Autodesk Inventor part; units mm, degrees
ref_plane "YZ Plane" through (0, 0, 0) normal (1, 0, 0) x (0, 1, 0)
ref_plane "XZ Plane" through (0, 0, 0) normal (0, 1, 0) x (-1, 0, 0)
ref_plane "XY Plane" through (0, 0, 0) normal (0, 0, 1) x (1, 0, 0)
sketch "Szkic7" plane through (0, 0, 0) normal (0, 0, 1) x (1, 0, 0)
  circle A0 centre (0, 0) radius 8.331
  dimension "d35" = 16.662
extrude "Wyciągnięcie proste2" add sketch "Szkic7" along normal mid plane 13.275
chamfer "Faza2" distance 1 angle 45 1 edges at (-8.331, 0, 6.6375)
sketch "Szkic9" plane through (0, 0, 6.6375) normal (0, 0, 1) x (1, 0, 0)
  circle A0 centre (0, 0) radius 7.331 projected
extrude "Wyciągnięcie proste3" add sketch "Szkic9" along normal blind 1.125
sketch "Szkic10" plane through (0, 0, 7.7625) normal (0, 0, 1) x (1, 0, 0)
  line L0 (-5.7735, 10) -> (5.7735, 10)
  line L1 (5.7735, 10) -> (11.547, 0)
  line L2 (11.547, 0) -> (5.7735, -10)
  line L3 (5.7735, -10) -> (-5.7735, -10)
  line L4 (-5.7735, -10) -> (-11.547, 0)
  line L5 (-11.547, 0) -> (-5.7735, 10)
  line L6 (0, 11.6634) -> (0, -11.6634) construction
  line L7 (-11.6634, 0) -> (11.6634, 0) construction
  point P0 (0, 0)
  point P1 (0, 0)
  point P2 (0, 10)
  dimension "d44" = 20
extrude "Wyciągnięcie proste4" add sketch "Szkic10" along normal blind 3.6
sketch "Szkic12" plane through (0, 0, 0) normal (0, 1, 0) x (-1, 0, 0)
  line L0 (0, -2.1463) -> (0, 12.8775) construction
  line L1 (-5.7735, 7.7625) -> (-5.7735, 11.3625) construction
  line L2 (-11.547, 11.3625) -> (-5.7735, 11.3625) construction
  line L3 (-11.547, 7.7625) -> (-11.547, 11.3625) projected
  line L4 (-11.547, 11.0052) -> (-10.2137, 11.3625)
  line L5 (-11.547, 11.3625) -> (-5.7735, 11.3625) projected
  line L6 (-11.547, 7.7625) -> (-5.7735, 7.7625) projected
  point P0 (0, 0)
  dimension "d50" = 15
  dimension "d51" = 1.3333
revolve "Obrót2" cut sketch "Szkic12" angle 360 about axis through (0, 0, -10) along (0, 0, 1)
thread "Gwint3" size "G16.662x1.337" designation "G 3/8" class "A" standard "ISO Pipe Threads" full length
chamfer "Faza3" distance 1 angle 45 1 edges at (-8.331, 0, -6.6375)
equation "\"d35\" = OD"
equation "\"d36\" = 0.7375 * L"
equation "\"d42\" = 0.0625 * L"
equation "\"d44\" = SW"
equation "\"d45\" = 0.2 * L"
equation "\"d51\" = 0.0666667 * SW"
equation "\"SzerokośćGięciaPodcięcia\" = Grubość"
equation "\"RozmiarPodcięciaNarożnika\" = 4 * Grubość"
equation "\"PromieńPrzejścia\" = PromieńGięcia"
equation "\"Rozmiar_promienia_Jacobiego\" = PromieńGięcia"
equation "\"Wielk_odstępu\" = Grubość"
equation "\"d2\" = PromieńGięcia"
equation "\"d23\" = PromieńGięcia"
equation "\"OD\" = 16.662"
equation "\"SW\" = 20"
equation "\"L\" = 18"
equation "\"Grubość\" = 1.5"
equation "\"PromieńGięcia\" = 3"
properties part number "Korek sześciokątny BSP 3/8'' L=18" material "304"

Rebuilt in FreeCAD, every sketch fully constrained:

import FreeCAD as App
import Part
import Sketcher
Q = App.Units.Quantity


def edges_at(feature, points):
    """Names of the edges that pass closest to the given points."""
    edges = feature.Shape.Edges
    near = lambda p: min(range(len(edges)), key=lambda i: edges[i].distToShape(Part.Vertex(*p))[0])
    return sorted({f"Edge{near(p) + 1}" for p in points})


def add_polygon(sketch, points):
    """Adds a closed chain of lines whose ends are joined by coincident constraints."""
    first, n = sketch.GeometryCount, len(points)
    for a, b in zip(points, points[1:] + points[:1]):
        sketch.addGeometry(Part.LineSegment(App.Vector(*a, 0), App.Vector(*b, 0)), False)
    for i in range(n):
        sketch.addConstraint(Sketcher.Constraint("Coincident", first + i, 2, first + (i + 1) % n, 1))

doc = App.newDocument("Part")
body = doc.addObject("PartDesign::Body", "Body")

# Sketch on XY plane
sketch1 = body.newObject("Sketcher::SketchObject", "Sketch")
sketch1.AttachmentSupport = (doc.getObject("XY_Plane"), [""])
sketch1.MapMode = "FlatFace"
sketch1.addGeometry(Part.Circle(App.Vector(0, 0, 0), App.Vector(0, 0, 1), 8), False)
sketch1.addConstraint([
    Sketcher.Constraint("Coincident", 0, 3, -1, 1),
    Sketcher.Constraint("Diameter", 0, 16.662),
])
pad1 = body.newObject("PartDesign::Pad", "Pad")
pad1.Profile = sketch1
pad1.Length = 13.275
pad1.Midplane = True
doc.recompute()

chamfer = body.newObject("PartDesign::Chamfer", "Chamfer")
chamfer.Base = (pad1, edges_at(pad1, [(-8.331, 0, 6.638)]))
chamfer.Size = 1

# Sketch on XY plane
sketch2 = body.newObject("Sketcher::SketchObject", "Sketch001")
sketch2.AttachmentSupport = (doc.getObject("XY_Plane"), [""])
sketch2.MapMode = "FlatFace"
sketch2.AttachmentOffset = App.Placement(App.Vector(0, 0, 6.6375), App.Rotation())
sketch2.addGeometry(Part.Circle(App.Vector(0, 0, 0), App.Vector(0, 0, 1), 7), False)
sketch2.addConstraint([
    Sketcher.Constraint("Coincident", 0, 3, -1, 1),
    Sketcher.Constraint("Diameter", 0, 14.662),
])
pad2 = body.newObject("PartDesign::Pad", "Pad001")
pad2.Profile = sketch2
pad2.Length = 1.125

# Sketch on XY plane
sketch3 = body.newObject("Sketcher::SketchObject", "Sketch002")
sketch3.AttachmentSupport = (doc.getObject("XY_Plane"), [""])
sketch3.MapMode = "FlatFace"
sketch3.AttachmentOffset = App.Placement(App.Vector(0, 0, 7.7625), App.Rotation())
add_polygon(sketch3, [(6, 10), (-6, 10), (-12, 0), (-6, -10), (6, -10), (12, 0)])  # lines 0-5
sketch3.addConstraint([
    Sketcher.Constraint("Horizontal", 0),
    Sketcher.Constraint("Horizontal", 3),
    Sketcher.Constraint("Symmetric", 0, 2, 3, 2, -1, 1),
    Sketcher.Constraint("Symmetric", 1, 2, 4, 2, -1, 1),
    Sketcher.Constraint("PointOnObject", 1, 2, -1),
    Sketcher.Constraint("Parallel", 2, 5),
    Sketcher.Constraint("Vertical", 0, 2, 2, 2),
    Sketcher.Constraint("DistanceY", 2, 2, 0, 2, 20.0),
    Sketcher.Constraint("Angle", 1, Q("-120 deg")),
    Sketcher.Constraint("DistanceX", 0, 2, 0, 1, 11.547),
])
pad3 = body.newObject("PartDesign::Pad", "Pad002")
pad3.Profile = sketch3
pad3.Length = 3.6

# Sketch on XZ plane
sketch4 = body.newObject("Sketcher::SketchObject", "Sketch003")
sketch4.AttachmentSupport = (doc.getObject("XZ_Plane"), [""])
sketch4.MapMode = "FlatFace"
add_polygon(sketch4, [(11.55, 11.36), (11.55, 11.01), (10.21, 11.36)])  # lines 0-2
sketch4.addConstraint([
    Sketcher.Constraint("Vertical", 0),
    Sketcher.Constraint("Horizontal", 2),
    Sketcher.Constraint("DistanceX", 2, 1, 2, 2, 1.3333),
    Sketcher.Constraint("DistanceY", 0, 2, 0, 1, 0.3573),
    Sketcher.Constraint("DistanceX", -1, 1, 0, 2, 11.547),
    Sketcher.Constraint("DistanceY", -1, 1, 0, 2, 11.0052),
])
groove = body.newObject("PartDesign::Groove", "Groove")
groove.Profile = sketch4
groove.ReferenceAxis = (sketch4, ["V_Axis"])
groove.Angle = 360
doc.recompute()

chamfer2 = body.newObject("PartDesign::Chamfer", "Chamfer001")
chamfer2.Base = (groove, edges_at(groove, [(-8.331, 0, -6.638)]))
chamfer2.Size = 1

doc.recompute()
